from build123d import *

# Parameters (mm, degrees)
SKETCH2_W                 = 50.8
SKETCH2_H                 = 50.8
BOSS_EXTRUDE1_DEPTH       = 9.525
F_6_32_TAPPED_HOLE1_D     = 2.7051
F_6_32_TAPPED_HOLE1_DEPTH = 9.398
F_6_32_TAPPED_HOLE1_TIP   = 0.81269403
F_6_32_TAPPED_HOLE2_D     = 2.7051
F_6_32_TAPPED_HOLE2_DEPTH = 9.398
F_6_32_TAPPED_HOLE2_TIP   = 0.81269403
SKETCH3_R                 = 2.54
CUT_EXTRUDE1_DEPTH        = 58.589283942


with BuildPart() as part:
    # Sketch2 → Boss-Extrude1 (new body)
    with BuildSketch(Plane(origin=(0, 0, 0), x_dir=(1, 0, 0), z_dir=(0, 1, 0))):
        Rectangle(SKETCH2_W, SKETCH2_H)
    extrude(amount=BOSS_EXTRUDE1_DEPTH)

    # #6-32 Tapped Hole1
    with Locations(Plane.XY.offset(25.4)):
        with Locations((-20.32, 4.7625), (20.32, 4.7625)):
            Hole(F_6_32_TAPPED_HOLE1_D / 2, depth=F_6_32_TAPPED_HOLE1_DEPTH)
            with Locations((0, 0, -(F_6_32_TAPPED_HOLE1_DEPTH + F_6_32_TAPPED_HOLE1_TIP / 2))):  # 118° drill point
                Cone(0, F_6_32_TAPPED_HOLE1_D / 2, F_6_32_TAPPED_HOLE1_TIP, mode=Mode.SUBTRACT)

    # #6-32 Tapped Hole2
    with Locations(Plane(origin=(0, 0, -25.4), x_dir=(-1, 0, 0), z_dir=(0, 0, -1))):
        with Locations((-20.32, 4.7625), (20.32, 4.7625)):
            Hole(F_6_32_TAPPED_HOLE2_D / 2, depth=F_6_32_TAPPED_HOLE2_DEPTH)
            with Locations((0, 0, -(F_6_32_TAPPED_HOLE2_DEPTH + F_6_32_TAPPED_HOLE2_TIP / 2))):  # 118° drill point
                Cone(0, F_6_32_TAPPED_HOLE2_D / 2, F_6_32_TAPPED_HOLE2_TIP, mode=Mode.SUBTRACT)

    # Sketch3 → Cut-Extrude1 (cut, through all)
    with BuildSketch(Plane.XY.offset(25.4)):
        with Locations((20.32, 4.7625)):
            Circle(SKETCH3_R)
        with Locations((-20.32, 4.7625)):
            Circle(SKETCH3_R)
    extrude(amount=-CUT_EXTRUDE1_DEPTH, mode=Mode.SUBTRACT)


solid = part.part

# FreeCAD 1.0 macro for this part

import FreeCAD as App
import Part
import Sketcher
from FreeCAD import Vector
Q = App.Units.Quantity

doc = App.newDocument("Part")
params = doc.addObject("Spreadsheet::Sheet", "Params")
for row, (alias, value) in enumerate([
    ("sketch1_width", "2 in"),
    ("pad1_length", "0.375 in"),
    ("hole_diameter", "0.1065 in"),
    ("hole_depth", "0.37 in"),
    ("hole2_diameter", "0.1065 in"),
    ("hole2_depth", "0.37 in"),
    ("sketch4_diameter", "0.2 in"),
], start=1):
    params.set(f"A{row}", alias)
    params.set(f"B{row}", "=" + value)
    params.setAlias(f"B{row}", alias)

body = doc.addObject("PartDesign::Body", "Body")

sketch1 = body.newObject("Sketcher::SketchObject", "Sketch")
sketch1.AttachmentSupport = (doc.getObject("XZ_Plane"), [""])
sketch1.MapMode = "FlatFace"
sketch1.addGeometry([
    Part.LineSegment(Vector(-25.4, -25.4, 0), Vector(-25.4, 25.4, 0)),
    Part.LineSegment(Vector(-25.4, 25.4, 0), Vector(25.4, 25.4, 0)),
    Part.LineSegment(Vector(25.4, 25.4, 0), Vector(25.4, -25.4, 0)),
    Part.LineSegment(Vector(25.4, -25.4, 0), Vector(-25.4, -25.4, 0)),
], False)
sketch1.addConstraint([
    Sketcher.Constraint("Coincident", 0, 2, 1, 1),
    Sketcher.Constraint("Coincident", 1, 2, 2, 1),
    Sketcher.Constraint("Coincident", 2, 2, 3, 1),
    Sketcher.Constraint("Coincident", 3, 2, 0, 1),
    Sketcher.Constraint("Vertical", 0),
    Sketcher.Constraint("Horizontal", 1),
    Sketcher.Constraint("Vertical", 2),
    Sketcher.Constraint("Horizontal", 3),
    Sketcher.Constraint("Symmetric", 0, 2, 2, 2, -1, 1),
    Sketcher.Constraint("Equal", 3, 0),
    Sketcher.Constraint("DistanceX", 1, 1, 1, 2, Q("2 in")),
])
sketch1.setExpression("Constraints[10]", "Params.sketch1_width")
pad1 = body.newObject("PartDesign::Pad", "Pad")
pad1.Profile = sketch1
pad1.setExpression("Length", "Params.pad1_length")
pad1.Reversed = True

sketch2 = body.newObject("Sketcher::SketchObject", "Sketch001")
sketch2.AttachmentSupport = (doc.getObject("XY_Plane"), [""])
sketch2.MapMode = "FlatFace"
sketch2.AttachmentOffset = App.Placement(Vector(0, 0, 1 * 25.4), App.Rotation())
sketch2.addGeometry([
    Part.Circle(Vector(-20.32, 4.7625, 0), Vector(0, 0, 1), 1.35255),
    Part.Circle(Vector(20.32, 4.7625, 0), Vector(0, 0, 1), 1.35255),
], False)
sketch2.addConstraint([
    Sketcher.Constraint("Equal", 0, 1),
    Sketcher.Constraint("Symmetric", 0, 3, 1, 3, -2),
    Sketcher.Constraint("Diameter", 0, Q("0.1065 in")),
    Sketcher.Constraint("DistanceX", 0, 3, -1, 1, Q("0.8 in")),
    Sketcher.Constraint("DistanceY", -1, 1, 0, 3, Q("0.1875 in")),
])
doc.recompute()
hole = body.newObject("PartDesign::Hole", "Hole")
hole.Profile = sketch2
hole.ThreadType = "None"
hole.setExpression("Diameter", "Params.hole_diameter")
hole.DepthType = "Dimension"
hole.setExpression("Depth", "Params.hole_depth")
hole.DrillPoint = "Angled"
hole.DrillPointAngle = 118

sketch3 = body.newObject("Sketcher::SketchObject", "Sketch002")
sketch3.AttachmentSupport = (doc.getObject("XY_Plane"), [""])
sketch3.MapMode = "FlatFace"
sketch3.AttachmentOffset = App.Placement(Vector(0, 0, -1 * 25.4), App.Rotation())
sketch3.addGeometry([
    Part.Circle(Vector(20.32, 4.7625, 0), Vector(0, 0, 1), 1.35255),
    Part.Circle(Vector(-20.32, 4.7625, 0), Vector(0, 0, 1), 1.35255),
], False)
sketch3.addConstraint([
    Sketcher.Constraint("Equal", 0, 1),
    Sketcher.Constraint("Symmetric", 0, 3, 1, 3, -2),
    Sketcher.Constraint("Diameter", 0, Q("0.1065 in")),
    Sketcher.Constraint("DistanceX", -1, 1, 0, 3, Q("0.8 in")),
    Sketcher.Constraint("DistanceY", -1, 1, 0, 3, Q("0.1875 in")),
])
doc.recompute()
hole2 = body.newObject("PartDesign::Hole", "Hole001")
hole2.Profile = sketch3
hole2.ThreadType = "None"
hole2.setExpression("Diameter", "Params.hole2_diameter")
hole2.DepthType = "Dimension"
hole2.setExpression("Depth", "Params.hole2_depth")
hole2.DrillPoint = "Angled"
hole2.DrillPointAngle = 118
hole2.Reversed = True

sketch4 = body.newObject("Sketcher::SketchObject", "Sketch003")
sketch4.AttachmentSupport = (doc.getObject("XY_Plane"), [""])
sketch4.MapMode = "FlatFace"
sketch4.AttachmentOffset = App.Placement(Vector(0, 0, 1 * 25.4), App.Rotation())
sketch4.addGeometry([
    Part.Circle(Vector(20.32, 4.7625, 0), Vector(0, 0, 1), 2.54),
    Part.Circle(Vector(-20.32, 4.7625, 0), Vector(0, 0, 1), 2.54),
], False)
sketch4.addConstraint([
    Sketcher.Constraint("Equal", 0, 1),
    Sketcher.Constraint("Symmetric", 0, 3, 1, 3, -2),
    Sketcher.Constraint("Diameter", 0, Q("0.2 in")),
    Sketcher.Constraint("DistanceX", -1, 1, 0, 3, Q("0.8 in")),
    Sketcher.Constraint("DistanceY", -1, 1, 0, 3, Q("0.1875 in")),
])
sketch4.setExpression("Constraints[2]", "Params.sketch4_diameter")
pocket1 = body.newObject("PartDesign::Pocket", "Pocket")
pocket1.Profile = sketch4
pocket1.Type = "ThroughAll"

doc.recompute()
